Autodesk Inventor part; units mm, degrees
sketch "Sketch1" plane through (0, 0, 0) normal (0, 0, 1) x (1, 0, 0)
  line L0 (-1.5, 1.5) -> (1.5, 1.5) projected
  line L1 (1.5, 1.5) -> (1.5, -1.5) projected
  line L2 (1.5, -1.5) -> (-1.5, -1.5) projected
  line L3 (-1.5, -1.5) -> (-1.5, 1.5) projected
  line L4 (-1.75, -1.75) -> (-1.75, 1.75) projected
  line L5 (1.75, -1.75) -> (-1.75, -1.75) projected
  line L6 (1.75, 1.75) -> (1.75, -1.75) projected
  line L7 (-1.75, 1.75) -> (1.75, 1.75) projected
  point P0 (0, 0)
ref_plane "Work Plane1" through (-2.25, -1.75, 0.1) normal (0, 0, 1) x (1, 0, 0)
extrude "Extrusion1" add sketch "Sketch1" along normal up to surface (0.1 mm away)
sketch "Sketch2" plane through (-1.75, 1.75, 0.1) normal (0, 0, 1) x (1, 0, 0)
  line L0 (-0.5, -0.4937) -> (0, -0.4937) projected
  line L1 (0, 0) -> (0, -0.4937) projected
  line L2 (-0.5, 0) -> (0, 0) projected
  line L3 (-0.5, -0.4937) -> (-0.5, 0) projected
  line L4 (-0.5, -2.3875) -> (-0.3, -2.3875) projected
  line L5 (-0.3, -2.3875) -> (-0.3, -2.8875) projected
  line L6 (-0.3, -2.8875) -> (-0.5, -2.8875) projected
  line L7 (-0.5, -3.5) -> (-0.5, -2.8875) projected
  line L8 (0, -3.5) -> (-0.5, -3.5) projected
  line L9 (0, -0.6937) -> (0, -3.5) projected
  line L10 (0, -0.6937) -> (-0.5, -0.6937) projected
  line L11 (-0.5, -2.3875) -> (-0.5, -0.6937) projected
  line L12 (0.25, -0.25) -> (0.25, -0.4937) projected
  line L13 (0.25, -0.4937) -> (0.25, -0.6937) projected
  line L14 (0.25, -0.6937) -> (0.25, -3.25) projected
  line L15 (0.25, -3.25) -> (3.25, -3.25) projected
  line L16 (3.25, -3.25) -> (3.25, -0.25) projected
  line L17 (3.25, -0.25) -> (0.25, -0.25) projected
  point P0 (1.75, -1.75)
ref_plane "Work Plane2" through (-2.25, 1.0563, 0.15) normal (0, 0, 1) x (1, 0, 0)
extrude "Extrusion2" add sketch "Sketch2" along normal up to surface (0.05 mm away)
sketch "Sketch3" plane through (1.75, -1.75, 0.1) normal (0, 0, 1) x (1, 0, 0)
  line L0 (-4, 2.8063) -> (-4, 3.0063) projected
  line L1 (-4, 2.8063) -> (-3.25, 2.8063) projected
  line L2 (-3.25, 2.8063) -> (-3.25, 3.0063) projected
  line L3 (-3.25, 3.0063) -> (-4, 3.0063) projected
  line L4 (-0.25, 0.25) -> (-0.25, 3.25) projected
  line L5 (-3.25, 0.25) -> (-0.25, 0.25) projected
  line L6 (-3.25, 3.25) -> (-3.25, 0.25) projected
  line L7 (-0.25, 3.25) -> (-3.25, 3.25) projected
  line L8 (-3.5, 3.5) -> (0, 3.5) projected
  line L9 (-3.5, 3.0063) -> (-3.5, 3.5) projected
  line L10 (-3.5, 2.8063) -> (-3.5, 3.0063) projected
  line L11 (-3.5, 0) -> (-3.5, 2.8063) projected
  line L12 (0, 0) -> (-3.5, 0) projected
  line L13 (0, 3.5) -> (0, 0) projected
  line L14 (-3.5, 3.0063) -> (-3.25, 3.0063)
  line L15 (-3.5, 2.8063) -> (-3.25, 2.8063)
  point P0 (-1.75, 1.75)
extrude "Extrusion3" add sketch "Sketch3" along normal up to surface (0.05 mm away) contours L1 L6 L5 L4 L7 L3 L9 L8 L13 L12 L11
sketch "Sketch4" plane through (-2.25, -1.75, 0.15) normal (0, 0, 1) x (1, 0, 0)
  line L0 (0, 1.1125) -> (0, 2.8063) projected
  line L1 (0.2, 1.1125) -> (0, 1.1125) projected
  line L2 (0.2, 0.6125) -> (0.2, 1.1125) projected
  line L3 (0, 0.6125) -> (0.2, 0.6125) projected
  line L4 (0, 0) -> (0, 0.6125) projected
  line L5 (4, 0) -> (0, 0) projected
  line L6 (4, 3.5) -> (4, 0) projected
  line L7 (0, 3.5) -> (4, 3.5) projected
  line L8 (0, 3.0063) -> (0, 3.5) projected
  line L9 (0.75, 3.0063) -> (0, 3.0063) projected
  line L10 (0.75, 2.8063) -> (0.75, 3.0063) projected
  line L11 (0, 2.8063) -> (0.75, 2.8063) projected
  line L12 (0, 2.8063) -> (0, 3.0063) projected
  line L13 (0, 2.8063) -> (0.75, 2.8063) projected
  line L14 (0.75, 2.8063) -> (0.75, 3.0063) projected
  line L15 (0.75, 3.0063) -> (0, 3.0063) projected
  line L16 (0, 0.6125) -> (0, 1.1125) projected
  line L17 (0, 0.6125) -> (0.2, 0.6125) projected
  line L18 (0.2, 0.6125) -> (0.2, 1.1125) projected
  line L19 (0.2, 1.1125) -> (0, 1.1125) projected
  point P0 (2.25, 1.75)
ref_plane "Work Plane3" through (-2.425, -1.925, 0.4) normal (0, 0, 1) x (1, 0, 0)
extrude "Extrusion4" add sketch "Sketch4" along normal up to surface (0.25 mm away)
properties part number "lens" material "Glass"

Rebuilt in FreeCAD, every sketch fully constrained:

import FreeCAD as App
import Part
import Sketcher
from FreeCAD import Vector
Q = App.Units.Quantity


def add_polygon(sketch, points):
    """Adds a closed chain of lines whose ends are joined by coincident constraints."""
    first, n = sketch.GeometryCount, len(points)
    for a, b in zip(points, points[1:] + points[:1]):
        sketch.addGeometry(Part.LineSegment(App.Vector(*a, 0), App.Vector(*b, 0)), False)
    for i in range(n):
        sketch.addConstraint(Sketcher.Constraint("Coincident", first + i, 2, first + (i + 1) % n, 1))

doc = App.newDocument("Part")
params = doc.addObject("Spreadsheet::Sheet", "Params")
for row, (alias, value) in enumerate([
    ("sketch1_width", "3 mm"),
    ("sketch1_width2", "3.5 mm"),
    ("pad1_length", "0.1 mm"),
    ("sketch2_width", "3 mm"),
    ("sketch2_width2", "0.5 mm"),
    ("sketch2_width3", "0.2 mm"),
    ("pad2_length", "0.05 mm"),
    ("sketch3_width", "3 mm"),
    ("sketch3_width2", "3.5 mm"),
    ("pad3_length", "0.05 mm"),
    ("sketch4_width", "4 mm"),
    ("sketch4_height", "3.5 mm"),
    ("pad4_length", "0.25 mm"),
], start=1):
    params.set(f"A{row}", alias)
    params.set(f"B{row}", "=" + value)
    params.setAlias(f"B{row}", alias)

body = doc.addObject("PartDesign::Body", "Body")
body.AllowCompound = True

sketch1 = body.newObject("Sketcher::SketchObject", "Sketch")
sketch1.AttachmentSupport = (doc.getObject("XY_Plane"), [""])
sketch1.MapMode = "FlatFace"
add_polygon(sketch1, [(-1.8, 1.8), (-1.8, -1.8), (1.8, -1.8), (1.8, 1.8)])
add_polygon(sketch1, [(-1.5, -1.5), (-1.5, 1.5), (1.5, 1.5), (1.5, -1.5)])
sketch1.addConstraint([
    Sketcher.Constraint("Vertical", 0),
    Sketcher.Constraint("Horizontal", 1),
    Sketcher.Constraint("Vertical", 2),
    Sketcher.Constraint("Horizontal", 3),
    Sketcher.Constraint("Vertical", 4),
    Sketcher.Constraint("Horizontal", 5),
    Sketcher.Constraint("Vertical", 6),
    Sketcher.Constraint("Horizontal", 7),
    Sketcher.Constraint("Symmetric", 0, 2, 2, 2, -1, 1),
    Sketcher.Constraint("Symmetric", 4, 2, 6, 2, -1, 1),
    Sketcher.Constraint("Equal", 3, 0),
    Sketcher.Constraint("Equal", 7, 4),
    Sketcher.Constraint("DistanceX", 5, 1, 5, 2, Q("3 mm")),
    Sketcher.Constraint("DistanceX", 1, 1, 1, 2, Q("3.5 mm")),
])
sketch1.setExpression("Constraints[20]", "Params.sketch1_width")
sketch1.setExpression("Constraints[21]", "Params.sketch1_width2")
pad1 = body.newObject("PartDesign::Pad", "Pad")
pad1.Profile = sketch1
pad1.setExpression("Length", "Params.pad1_length")

sketch2 = body.newObject("Sketcher::SketchObject", "Sketch001")
sketch2.AttachmentSupport = (doc.getObject("XY_Plane"), [""])
sketch2.MapMode = "FlatFace"
sketch2.AttachmentOffset = App.Placement(Vector(0, 0, 0.1), App.Rotation())
add_polygon(sketch2, [(-2.25, 1.75), (-2.25, 1.26), (-1.75, 1.26), (-1.75, 1.75)])
add_polygon(sketch2, [(-2.25, 1.06), (-2.25, -0.64), (-2.05, -0.64), (-2.05, -1.14), (-2.25, -1.14), (-2.25, -1.75), (-1.75, -1.75), (-1.75, 1.06)])
add_polygon(sketch2, [(1.5, 1.5), (-1.5, 1.5), (-1.5, -1.5), (1.5, -1.5)])
sketch2.addConstraint([
    Sketcher.Constraint("Vertical", 0),
    Sketcher.Constraint("Horizontal", 1),
    Sketcher.Constraint("Vertical", 2),
    Sketcher.Constraint("Horizontal", 3),
    Sketcher.Constraint("Vertical", 4),
    Sketcher.Constraint("Horizontal", 5),
    Sketcher.Constraint("Vertical", 6),
    Sketcher.Constraint("Horizontal", 7),
    Sketcher.Constraint("Vertical", 8),
    Sketcher.Constraint("Horizontal", 9),
    Sketcher.Constraint("Vertical", 10),
    Sketcher.Constraint("Horizontal", 11),
    Sketcher.Constraint("Horizontal", 12),
    Sketcher.Constraint("Vertical", 13),
    Sketcher.Constraint("Horizontal", 14),
    Sketcher.Constraint("Vertical", 15),
    Sketcher.Constraint("Symmetric", 12, 2, 14, 2, -1, 1),
    Sketcher.Constraint("Symmetric", 3, 2, 8, 2, -1),
    Sketcher.Constraint("Vertical", 3, 2, 4, 2),
    Sketcher.Constraint("Vertical", 2, 2, 9, 2),
    Sketcher.Constraint("Equal", 11, 6),
    Sketcher.Constraint("Equal", 14, 13),
    Sketcher.Constraint("DistanceX", 12, 2, 12, 1, Q("3 mm")),
    Sketcher.Constraint("DistanceX", 1, 1, 1, 2, Q("0.5 mm")),
    Sketcher.Constraint("DistanceX", 5, 1, 5, 2, Q("0.2 mm")),
    Sketcher.Constraint("DistanceY", 10, 2, 1, 2, Q("0.2 mm")),
    Sketcher.Constraint("DistanceX", 0, 2, -1, 1, Q("2.25 mm")),
    Sketcher.Constraint("DistanceY", -1, 1, 2, 2, Q("1.75 mm")),
    Sketcher.Constraint("DistanceY", 0, 2, 0, 1, Q("0.4937 mm")),
    Sketcher.Constraint("DistanceY", 4, 2, 4, 1, Q("1.6938 mm")),
])
sketch2.setExpression("Constraints[38]", "Params.sketch2_width")
sketch2.setExpression("Constraints[39]", "Params.sketch2_width2")
sketch2.setExpression("Constraints[40]", "Params.sketch2_width3")
pad2 = body.newObject("PartDesign::Pad", "Pad001")
pad2.Profile = sketch2
pad2.setExpression("Length", "Params.pad2_length")

sketch3 = body.newObject("Sketcher::SketchObject", "Sketch002")
sketch3.AttachmentSupport = (doc.getObject("XY_Plane"), [""])
sketch3.MapMode = "FlatFace"
sketch3.AttachmentOffset = App.Placement(Vector(0, 0, 0.1), App.Rotation())
add_polygon(sketch3, [(-1.5, 1.06), (-1.75, 1.06), (-1.75, -1.75), (1.75, -1.75), (1.75, 1.75), (-1.75, 1.75), (-1.75, 1.26), (-1.5, 1.26), (-1.5, 1.5), (1.5, 1.5), (1.5, -1.5), (-1.5, -1.5)])
sketch3.addConstraint([
    Sketcher.Constraint("Horizontal", 0),
    Sketcher.Constraint("Vertical", 1),
    Sketcher.Constraint("Horizontal", 2),
    Sketcher.Constraint("Vertical", 3),
    Sketcher.Constraint("Horizontal", 4),
    Sketcher.Constraint("Vertical", 5),
    Sketcher.Constraint("Horizontal", 6),
    Sketcher.Constraint("Vertical", 7),
    Sketcher.Constraint("Horizontal", 8),
    Sketcher.Constraint("Vertical", 9),
    Sketcher.Constraint("Horizontal", 10),
    Sketcher.Constraint("Vertical", 11),
    Sketcher.Constraint("Symmetric", 1, 2, 3, 2, -1, 1),
    Sketcher.Constraint("Symmetric", 7, 2, 9, 2, -1, 1),
    Sketcher.Constraint("Vertical", 1, 2, 4, 2),
    Sketcher.Constraint("Vertical", 7, 2, 10, 2),
    Sketcher.Constraint("Equal", 4, 3),
    Sketcher.Constraint("Equal", 10, 9),
    Sketcher.Constraint("DistanceX", 8, 1, 8, 2, Q("3 mm")),
    Sketcher.Constraint("DistanceX", 2, 1, 2, 2, Q("3.5 mm")),
    Sketcher.Constraint("DistanceY", 0, 2, 5, 2, Q("0.2 mm")),
    Sketcher.Constraint("DistanceY", 1, 2, 1, 1, Q("2.8063 mm")),
])
sketch3.setExpression("Constraints[30]", "Params.sketch3_width")
sketch3.setExpression("Constraints[31]", "Params.sketch3_width2")
pad3 = body.newObject("PartDesign::Pad", "Pad002")
pad3.Profile = sketch3
pad3.setExpression("Length", "Params.pad3_length")

sketch4 = body.newObject("Sketcher::SketchObject", "Sketch003")
sketch4.AttachmentSupport = (doc.getObject("XY_Plane"), [""])
sketch4.MapMode = "FlatFace"
sketch4.AttachmentOffset = App.Placement(Vector(0, 0, 0.15), App.Rotation())
add_polygon(sketch4, [(-2.2, -1.8), (1.8, -1.8), (1.8, 1.8), (-2.2, 1.8)])
sketch4.addConstraint([
    Sketcher.Constraint("Horizontal", 0),
    Sketcher.Constraint("Vertical", 1),
    Sketcher.Constraint("Horizontal", 2),
    Sketcher.Constraint("Vertical", 3),
    Sketcher.Constraint("DistanceX", 0, 1, 0, 2, Q("4 mm")),
    Sketcher.Constraint("DistanceY", 1, 1, 1, 2, Q("3.5 mm")),
    Sketcher.Constraint("DistanceX", -1, 1, 0, 2, Q("1.75 mm")),
    Sketcher.Constraint("DistanceY", 0, 2, -1, 1, Q("1.75 mm")),
])
sketch4.setExpression("Constraints[8]", "Params.sketch4_width")
sketch4.setExpression("Constraints[9]", "Params.sketch4_height")
pad4 = body.newObject("PartDesign::Pad", "Pad003")
pad4.Profile = sketch4
pad4.setExpression("Length", "Params.pad4_length")

doc.recompute()
